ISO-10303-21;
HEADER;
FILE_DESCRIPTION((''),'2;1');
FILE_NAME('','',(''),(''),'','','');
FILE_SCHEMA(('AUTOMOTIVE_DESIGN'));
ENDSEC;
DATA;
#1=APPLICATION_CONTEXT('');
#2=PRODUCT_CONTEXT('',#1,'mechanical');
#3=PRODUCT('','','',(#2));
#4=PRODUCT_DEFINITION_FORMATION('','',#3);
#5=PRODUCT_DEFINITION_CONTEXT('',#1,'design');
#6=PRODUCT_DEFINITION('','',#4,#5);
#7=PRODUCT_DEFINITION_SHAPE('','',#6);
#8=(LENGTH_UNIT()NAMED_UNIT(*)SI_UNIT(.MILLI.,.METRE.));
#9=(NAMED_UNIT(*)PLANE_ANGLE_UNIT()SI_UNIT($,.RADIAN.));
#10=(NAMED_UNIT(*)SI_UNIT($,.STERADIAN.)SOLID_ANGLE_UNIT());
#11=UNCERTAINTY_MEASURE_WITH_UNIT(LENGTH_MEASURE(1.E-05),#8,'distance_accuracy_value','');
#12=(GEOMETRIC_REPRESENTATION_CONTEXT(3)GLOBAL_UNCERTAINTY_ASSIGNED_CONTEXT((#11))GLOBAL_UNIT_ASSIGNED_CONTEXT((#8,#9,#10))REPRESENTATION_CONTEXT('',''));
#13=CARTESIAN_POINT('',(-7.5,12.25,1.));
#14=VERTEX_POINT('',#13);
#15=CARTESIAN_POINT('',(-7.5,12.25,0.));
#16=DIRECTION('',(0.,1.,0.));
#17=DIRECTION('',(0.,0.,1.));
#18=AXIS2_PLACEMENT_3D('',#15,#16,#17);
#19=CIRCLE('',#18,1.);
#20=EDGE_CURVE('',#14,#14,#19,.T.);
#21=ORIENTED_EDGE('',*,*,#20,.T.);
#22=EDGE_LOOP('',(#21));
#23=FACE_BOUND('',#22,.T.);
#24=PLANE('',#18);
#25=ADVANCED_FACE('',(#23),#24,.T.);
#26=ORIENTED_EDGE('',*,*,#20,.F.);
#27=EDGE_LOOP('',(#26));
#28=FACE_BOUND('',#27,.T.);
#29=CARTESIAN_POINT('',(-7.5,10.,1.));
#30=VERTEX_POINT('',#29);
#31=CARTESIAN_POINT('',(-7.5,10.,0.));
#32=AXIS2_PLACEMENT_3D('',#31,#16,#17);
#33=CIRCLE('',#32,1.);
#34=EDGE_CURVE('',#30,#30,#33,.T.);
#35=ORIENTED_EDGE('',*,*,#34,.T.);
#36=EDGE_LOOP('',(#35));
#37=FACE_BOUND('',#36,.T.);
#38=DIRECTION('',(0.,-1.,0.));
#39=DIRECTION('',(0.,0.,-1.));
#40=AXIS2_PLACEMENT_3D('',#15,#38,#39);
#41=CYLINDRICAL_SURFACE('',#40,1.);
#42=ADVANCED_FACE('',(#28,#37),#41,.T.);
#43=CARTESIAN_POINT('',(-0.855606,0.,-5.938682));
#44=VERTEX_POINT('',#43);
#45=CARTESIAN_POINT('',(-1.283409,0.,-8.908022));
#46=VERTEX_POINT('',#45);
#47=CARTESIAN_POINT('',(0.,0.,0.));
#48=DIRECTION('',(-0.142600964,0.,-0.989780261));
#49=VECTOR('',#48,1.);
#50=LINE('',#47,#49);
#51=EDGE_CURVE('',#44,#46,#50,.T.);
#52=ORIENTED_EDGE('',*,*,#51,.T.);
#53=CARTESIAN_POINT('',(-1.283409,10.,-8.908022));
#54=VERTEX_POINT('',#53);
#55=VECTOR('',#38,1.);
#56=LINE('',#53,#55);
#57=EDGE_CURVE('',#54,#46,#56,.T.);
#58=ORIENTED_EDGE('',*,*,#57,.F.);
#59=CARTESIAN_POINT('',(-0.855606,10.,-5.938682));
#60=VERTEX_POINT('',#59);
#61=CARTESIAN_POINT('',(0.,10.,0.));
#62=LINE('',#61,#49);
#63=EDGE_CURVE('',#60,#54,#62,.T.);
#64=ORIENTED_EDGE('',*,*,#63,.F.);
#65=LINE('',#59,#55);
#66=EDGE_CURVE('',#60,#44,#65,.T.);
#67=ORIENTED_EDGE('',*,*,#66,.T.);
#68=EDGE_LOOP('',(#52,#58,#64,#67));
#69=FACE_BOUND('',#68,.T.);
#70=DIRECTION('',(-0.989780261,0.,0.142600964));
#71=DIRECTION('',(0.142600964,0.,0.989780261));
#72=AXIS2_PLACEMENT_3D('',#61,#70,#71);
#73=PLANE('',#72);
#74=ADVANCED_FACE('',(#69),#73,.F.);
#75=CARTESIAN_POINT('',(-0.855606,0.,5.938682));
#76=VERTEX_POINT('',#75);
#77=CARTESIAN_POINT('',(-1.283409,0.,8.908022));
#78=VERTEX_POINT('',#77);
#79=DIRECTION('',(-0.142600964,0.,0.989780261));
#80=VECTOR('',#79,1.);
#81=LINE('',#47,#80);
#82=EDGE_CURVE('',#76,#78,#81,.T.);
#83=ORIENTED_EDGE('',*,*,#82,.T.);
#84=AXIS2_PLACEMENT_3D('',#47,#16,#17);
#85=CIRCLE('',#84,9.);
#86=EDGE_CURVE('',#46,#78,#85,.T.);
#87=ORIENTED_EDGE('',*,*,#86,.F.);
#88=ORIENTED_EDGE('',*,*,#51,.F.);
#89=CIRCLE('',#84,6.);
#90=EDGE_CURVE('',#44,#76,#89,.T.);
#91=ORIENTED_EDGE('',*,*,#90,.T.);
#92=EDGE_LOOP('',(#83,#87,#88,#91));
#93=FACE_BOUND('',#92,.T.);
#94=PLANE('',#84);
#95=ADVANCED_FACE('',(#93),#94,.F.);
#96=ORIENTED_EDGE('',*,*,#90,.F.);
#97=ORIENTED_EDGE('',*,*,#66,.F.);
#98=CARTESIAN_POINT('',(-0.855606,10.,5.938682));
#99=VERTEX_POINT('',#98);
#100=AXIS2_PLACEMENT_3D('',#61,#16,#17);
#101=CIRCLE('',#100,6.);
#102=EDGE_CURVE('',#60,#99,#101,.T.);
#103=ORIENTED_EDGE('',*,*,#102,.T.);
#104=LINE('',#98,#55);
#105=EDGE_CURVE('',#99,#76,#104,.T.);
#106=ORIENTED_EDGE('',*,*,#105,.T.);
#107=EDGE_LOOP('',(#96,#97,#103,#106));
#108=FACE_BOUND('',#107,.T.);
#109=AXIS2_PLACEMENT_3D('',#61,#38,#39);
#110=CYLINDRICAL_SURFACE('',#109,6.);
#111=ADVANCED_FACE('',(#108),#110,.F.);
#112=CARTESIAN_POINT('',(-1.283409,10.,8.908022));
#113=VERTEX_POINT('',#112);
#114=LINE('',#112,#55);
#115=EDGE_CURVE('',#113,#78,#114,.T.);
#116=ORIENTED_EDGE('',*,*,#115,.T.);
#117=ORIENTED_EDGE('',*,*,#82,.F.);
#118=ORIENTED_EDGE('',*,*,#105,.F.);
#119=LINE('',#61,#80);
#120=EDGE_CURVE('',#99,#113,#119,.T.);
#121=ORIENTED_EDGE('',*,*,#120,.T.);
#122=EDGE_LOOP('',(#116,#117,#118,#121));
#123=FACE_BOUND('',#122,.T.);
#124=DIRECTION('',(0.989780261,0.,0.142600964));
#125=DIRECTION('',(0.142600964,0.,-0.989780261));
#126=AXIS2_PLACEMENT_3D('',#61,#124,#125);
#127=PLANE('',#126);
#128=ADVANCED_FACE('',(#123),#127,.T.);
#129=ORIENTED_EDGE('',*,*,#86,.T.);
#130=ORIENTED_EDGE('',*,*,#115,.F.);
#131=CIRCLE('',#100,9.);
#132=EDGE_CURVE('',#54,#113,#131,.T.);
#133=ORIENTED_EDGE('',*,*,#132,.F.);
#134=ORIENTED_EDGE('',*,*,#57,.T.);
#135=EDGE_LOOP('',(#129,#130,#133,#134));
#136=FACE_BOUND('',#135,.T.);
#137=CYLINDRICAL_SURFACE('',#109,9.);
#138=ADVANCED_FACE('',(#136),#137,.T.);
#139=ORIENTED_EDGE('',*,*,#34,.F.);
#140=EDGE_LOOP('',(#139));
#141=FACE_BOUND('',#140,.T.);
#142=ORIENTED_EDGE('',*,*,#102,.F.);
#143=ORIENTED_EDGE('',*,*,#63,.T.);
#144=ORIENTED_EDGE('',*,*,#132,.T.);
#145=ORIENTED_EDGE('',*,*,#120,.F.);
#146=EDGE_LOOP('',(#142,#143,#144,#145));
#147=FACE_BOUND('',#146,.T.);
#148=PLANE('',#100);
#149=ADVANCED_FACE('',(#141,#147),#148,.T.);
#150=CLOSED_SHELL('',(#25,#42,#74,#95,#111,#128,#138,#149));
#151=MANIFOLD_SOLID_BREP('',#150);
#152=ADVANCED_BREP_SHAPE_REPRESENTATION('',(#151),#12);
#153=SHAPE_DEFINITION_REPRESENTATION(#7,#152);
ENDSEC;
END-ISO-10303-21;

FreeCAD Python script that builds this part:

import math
import FreeCAD as App
import Part
import Sketcher
Q = App.Units.Quantity

doc = App.newDocument("Part")
body = doc.addObject("PartDesign::Body", "Body")

sketch1 = body.newObject("Sketcher::SketchObject", "Sketch")
sketch1.AttachmentSupport = (doc.getObject("XZ_Plane"), [""])
sketch1.MapMode = "FlatFace"
sketch1.addGeometry(Part.ArcOfCircle(Part.Circle(App.Vector(0, 0, 0), App.Vector(0, 0, 1), 6), math.radians(98), math.radians(262)), False)
sketch1.addGeometry(Part.LineSegment(App.Vector(-0.9, -5.9, 0), App.Vector(-1.3, -8.9, 0)), False)
sketch1.addGeometry(Part.ArcOfCircle(Part.Circle(App.Vector(0, 0, 0), App.Vector(0, 0, 1), 9), math.radians(98), math.radians(262)), False)
sketch1.addGeometry(Part.LineSegment(App.Vector(-1.3, 8.9, 0), App.Vector(-0.9, 5.9, 0)), False)
sketch1.addConstraint(Sketcher.Constraint("Coincident", 0, 2, 1, 1))
sketch1.addConstraint(Sketcher.Constraint("Coincident", 1, 2, 2, 2))
sketch1.addConstraint(Sketcher.Constraint("Coincident", 2, 1, 3, 1))
sketch1.addConstraint(Sketcher.Constraint("Coincident", 3, 2, 0, 1))
sketch1.addConstraint(Sketcher.Constraint("Coincident", 0, 3, -1, 1))
sketch1.addConstraint(Sketcher.Constraint("Coincident", 2, 3, -1, 1))
sketch1.addConstraint(Sketcher.Constraint("Vertical", 1, 2, 2, 1))
sketch1.addConstraint(Sketcher.Constraint("Vertical", 0, 2, 3, 2))
sketch1.addConstraint(Sketcher.Constraint("Radius", 0, Q("6 mm")))
sketch1.addConstraint(Sketcher.Constraint("Radius", 2, Q("9 mm")))
sketch1.addConstraint(Sketcher.Constraint("DistanceY", 0, 2, -1, 1, Q("5.938682 mm")))
sketch1.addConstraint(Sketcher.Constraint("DistanceX", 1, 2, -1, 1, Q("1.283409 mm")))
pad1 = body.newObject("PartDesign::Pad", "Pad")
pad1.Profile = sketch1
pad1.Length = 10
pad1.Reversed = True

sketch2 = body.newObject("Sketcher::SketchObject", "Sketch001")
sketch2.AttachmentSupport = (doc.getObject("XZ_Plane"), [""])
sketch2.MapMode = "FlatFace"
sketch2.AttachmentOffset = App.Placement(App.Vector(0, 0, -10), App.Rotation())
sketch2.addGeometry(Part.Circle(App.Vector(-7.5, 0, 0), App.Vector(0, 0, 1), 1), False)
sketch2.addConstraint(Sketcher.Constraint("PointOnObject", 0, 3, -1))
sketch2.addConstraint(Sketcher.Constraint("Diameter", 0, Q("2 mm")))
sketch2.addConstraint(Sketcher.Constraint("DistanceX", 0, 3, -1, 1, Q("7.5 mm")))
pad2 = body.newObject("PartDesign::Pad", "Pad001")
pad2.Profile = sketch2
pad2.Length = 2.25
pad2.Reversed = True

doc.recompute()
